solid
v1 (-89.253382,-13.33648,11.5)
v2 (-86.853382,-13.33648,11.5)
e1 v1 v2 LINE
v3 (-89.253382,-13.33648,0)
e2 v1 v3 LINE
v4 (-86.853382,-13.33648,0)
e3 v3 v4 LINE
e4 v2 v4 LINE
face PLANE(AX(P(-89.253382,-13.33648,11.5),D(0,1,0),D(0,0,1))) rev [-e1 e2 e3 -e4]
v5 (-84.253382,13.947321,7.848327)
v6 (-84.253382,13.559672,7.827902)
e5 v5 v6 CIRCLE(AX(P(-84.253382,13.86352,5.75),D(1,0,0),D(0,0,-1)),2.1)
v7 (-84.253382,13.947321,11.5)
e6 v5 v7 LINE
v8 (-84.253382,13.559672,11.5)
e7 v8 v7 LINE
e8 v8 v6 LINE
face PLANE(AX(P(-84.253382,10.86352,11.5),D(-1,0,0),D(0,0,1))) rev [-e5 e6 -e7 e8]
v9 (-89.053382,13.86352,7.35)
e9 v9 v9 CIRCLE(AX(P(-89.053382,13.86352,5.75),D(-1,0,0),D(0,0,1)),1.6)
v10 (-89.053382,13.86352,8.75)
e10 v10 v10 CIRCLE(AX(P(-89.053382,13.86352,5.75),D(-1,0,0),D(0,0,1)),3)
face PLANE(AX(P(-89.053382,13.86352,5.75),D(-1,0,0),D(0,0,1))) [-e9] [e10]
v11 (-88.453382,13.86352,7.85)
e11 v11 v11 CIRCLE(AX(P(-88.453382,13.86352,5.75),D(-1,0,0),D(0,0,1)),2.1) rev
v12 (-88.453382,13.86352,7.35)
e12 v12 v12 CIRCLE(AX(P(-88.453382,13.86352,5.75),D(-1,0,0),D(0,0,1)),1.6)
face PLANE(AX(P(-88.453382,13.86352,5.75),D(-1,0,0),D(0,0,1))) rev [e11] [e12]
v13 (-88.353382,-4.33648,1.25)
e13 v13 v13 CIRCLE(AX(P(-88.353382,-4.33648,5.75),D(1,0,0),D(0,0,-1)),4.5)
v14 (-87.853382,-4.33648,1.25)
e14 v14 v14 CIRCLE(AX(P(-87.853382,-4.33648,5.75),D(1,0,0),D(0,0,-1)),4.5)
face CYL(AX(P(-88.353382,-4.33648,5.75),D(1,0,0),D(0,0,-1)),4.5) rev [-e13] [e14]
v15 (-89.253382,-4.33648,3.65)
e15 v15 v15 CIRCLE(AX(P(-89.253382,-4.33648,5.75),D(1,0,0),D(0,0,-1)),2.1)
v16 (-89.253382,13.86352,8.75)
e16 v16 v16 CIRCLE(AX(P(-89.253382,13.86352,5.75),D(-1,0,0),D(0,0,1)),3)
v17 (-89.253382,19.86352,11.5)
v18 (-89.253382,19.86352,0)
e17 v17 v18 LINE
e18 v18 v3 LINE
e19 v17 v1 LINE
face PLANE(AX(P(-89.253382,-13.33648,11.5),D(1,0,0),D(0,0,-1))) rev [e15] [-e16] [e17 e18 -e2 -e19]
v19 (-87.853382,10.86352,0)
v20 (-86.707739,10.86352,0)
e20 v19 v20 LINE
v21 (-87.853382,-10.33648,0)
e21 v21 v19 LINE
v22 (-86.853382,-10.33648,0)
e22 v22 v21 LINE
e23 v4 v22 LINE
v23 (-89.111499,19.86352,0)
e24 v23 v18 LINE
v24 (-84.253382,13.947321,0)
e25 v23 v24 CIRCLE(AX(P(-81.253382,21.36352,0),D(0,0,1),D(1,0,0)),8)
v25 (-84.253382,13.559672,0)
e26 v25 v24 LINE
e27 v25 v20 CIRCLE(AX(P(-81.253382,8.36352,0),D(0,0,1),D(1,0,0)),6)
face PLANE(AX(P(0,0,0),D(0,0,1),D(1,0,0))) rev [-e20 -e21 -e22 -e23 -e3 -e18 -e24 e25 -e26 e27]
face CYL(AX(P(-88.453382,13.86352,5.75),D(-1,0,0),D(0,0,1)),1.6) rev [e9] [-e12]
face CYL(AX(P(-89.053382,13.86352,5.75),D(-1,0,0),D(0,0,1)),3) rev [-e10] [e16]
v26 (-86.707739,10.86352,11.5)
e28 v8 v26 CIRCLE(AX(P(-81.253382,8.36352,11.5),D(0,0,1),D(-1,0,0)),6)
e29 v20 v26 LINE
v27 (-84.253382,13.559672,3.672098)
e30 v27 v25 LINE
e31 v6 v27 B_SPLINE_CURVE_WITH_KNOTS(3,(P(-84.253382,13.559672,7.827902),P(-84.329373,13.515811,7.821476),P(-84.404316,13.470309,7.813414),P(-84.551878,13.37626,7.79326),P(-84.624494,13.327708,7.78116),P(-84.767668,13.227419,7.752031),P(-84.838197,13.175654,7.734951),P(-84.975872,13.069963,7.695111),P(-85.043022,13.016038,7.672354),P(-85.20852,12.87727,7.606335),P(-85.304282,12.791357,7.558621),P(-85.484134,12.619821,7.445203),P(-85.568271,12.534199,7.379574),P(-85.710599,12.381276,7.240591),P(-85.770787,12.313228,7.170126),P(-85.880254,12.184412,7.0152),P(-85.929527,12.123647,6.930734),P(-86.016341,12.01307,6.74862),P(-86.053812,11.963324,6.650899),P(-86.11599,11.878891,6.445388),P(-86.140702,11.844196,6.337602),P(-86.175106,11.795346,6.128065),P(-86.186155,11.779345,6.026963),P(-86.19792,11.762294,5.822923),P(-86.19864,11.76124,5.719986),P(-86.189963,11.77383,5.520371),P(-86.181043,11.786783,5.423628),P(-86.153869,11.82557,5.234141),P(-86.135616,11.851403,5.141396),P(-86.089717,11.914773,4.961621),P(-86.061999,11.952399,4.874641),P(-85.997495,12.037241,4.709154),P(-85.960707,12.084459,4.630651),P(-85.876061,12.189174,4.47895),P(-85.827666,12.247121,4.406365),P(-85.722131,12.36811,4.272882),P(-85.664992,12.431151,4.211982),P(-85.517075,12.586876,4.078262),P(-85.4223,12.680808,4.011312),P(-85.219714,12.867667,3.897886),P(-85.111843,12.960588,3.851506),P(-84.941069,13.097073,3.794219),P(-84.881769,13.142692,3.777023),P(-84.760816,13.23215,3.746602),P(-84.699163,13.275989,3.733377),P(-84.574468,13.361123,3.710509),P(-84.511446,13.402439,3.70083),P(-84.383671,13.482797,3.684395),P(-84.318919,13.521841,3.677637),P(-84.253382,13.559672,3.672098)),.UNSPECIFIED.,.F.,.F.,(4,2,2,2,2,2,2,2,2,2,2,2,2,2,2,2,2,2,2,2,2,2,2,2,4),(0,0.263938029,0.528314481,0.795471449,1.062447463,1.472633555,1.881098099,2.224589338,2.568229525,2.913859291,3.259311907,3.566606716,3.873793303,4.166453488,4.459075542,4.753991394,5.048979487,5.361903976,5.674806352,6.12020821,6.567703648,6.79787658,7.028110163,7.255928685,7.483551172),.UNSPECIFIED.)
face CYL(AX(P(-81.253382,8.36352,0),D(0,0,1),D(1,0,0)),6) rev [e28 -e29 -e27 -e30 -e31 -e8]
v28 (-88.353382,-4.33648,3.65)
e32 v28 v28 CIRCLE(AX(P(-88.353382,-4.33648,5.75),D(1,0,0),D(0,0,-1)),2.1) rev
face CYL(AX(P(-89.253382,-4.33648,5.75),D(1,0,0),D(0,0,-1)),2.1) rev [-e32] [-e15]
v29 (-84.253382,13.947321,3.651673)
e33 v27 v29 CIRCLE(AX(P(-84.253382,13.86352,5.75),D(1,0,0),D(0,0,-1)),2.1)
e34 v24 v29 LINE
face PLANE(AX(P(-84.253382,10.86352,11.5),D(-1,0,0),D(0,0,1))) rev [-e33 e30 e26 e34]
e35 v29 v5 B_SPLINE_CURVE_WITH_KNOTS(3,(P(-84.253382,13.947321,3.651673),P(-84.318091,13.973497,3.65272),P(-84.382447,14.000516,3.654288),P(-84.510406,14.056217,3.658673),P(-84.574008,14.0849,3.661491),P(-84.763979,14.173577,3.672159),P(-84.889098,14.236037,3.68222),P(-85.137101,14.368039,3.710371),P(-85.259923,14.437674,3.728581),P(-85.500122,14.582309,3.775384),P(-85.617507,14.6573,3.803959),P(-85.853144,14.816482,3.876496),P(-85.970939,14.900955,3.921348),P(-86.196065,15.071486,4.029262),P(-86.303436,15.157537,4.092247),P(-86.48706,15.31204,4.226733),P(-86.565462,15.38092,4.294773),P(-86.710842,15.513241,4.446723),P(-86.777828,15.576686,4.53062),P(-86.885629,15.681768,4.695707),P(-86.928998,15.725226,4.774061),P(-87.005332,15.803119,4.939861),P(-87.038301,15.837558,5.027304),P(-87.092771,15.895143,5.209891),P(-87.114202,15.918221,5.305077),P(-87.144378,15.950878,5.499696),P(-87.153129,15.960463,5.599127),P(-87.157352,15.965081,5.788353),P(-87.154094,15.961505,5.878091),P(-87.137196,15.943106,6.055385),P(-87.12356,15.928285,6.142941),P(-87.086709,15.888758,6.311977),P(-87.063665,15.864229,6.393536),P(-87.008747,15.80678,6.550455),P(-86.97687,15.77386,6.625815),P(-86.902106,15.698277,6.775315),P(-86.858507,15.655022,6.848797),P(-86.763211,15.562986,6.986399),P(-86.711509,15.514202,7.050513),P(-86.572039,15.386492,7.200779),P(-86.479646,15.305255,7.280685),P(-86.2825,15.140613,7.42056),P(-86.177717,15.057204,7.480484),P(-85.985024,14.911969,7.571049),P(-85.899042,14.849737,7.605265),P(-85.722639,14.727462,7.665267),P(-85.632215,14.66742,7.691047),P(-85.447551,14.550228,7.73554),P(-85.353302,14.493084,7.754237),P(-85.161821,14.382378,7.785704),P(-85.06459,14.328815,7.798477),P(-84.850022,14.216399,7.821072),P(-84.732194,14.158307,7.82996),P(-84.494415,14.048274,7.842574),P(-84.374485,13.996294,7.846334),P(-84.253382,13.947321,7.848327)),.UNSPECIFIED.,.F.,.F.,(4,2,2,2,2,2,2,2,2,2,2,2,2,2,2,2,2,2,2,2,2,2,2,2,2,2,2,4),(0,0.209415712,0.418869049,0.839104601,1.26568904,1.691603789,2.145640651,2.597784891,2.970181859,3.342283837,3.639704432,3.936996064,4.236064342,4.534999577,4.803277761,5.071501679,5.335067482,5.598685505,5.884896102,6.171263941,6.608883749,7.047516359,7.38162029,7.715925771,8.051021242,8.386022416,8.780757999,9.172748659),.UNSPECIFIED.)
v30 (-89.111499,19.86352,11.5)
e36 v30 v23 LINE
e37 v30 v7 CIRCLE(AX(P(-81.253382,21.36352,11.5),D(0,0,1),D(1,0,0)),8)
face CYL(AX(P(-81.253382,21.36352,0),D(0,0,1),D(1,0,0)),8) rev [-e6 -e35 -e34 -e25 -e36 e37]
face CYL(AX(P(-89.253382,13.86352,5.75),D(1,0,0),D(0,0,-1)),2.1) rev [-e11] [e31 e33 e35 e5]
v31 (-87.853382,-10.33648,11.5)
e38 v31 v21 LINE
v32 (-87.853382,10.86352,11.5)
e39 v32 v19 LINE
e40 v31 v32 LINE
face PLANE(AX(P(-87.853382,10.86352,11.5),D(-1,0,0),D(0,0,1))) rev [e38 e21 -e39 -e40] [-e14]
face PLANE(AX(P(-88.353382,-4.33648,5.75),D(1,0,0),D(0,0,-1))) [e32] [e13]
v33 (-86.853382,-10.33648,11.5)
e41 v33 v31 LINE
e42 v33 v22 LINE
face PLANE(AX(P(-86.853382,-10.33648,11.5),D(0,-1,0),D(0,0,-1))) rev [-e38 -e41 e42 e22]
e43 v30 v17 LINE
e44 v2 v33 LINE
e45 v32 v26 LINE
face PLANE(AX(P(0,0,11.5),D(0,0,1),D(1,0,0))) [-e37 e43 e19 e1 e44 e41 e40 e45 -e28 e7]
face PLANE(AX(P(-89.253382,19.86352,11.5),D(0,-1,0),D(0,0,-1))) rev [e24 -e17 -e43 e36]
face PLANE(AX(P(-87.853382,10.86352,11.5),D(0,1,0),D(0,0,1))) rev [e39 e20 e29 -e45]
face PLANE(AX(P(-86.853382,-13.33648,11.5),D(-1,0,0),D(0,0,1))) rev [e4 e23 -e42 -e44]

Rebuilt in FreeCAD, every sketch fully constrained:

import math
import FreeCAD as App
import Part
import Sketcher
from FreeCAD import Vector
Q = App.Units.Quantity

doc = App.newDocument("Part")
params = doc.addObject("Spreadsheet::Sheet", "Params")
for row, (alias, value) in enumerate([
    ("sketch1_width", "1 mm"),
    ("sketch1_height", "3 mm"),
    ("sketch1_height2", "6 mm"),
    ("sketch1_width2", "2.4 mm"),
    ("sketch1_width3", "3.6 mm"),
    ("pad1_length", "11.5 mm"),
    ("sketch2_diameter", "4.2 mm"),
    ("pocket1_length", "5 mm"),
    ("sketch3_diameter", "9 mm"),
    ("pocket2_length", "0.5 mm"),
    ("sketch4_diameter", "6 mm"),
    ("pocket3_length", "0.2 mm"),
    ("sketch5_diameter", "4.2 mm"),
    ("sketch5_diameter2", "3.2 mm"),
    ("pad2_length", "0.6 mm"),
    ("sketch6_radius", "8 mm"),
    ("sketch6_radius2", "6 mm"),
    ("pocket4_length", "11.5 mm"),
], start=1):
    params.set(f"A{row}", alias)
    params.set(f"B{row}", "=" + value)
    params.setAlias(f"B{row}", alias)

body = doc.addObject("PartDesign::Body", "Body")

# Sketch on XY plane
sketch1 = body.newObject("Sketcher::SketchObject", "Sketch")
sketch1.AttachmentSupport = (doc.getObject("XY_Plane"), [""])
sketch1.MapMode = "FlatFace"
sketch1.addGeometry([
    Part.LineSegment(Vector(-89.253382, 19.86352, 0), Vector(-89.253382, -13.33648, 0)),  # 0
    Part.LineSegment(Vector(-89.253382, -13.33648, 0), Vector(-86.853382, -13.33648, 0)),  # 1
    Part.LineSegment(Vector(-86.853382, -13.33648, 0), Vector(-86.853382, -10.33648, 0)),  # 2
    Part.LineSegment(Vector(-86.853382, -10.33648, 0), Vector(-87.853382, -10.33648, 0)),  # 3
    Part.LineSegment(Vector(-87.853382, -10.33648, 0), Vector(-87.853382, 10.86352, 0)),  # 4
    Part.LineSegment(Vector(-87.853382, 10.86352, 0), Vector(-84.253382, 10.86352, 0)),  # 5
    Part.LineSegment(Vector(-84.253382, 10.86352, 0), Vector(-84.253382, 16.86352, 0)),  # 6
    Part.LineSegment(Vector(-84.253382, 16.86352, 0), Vector(-87.853382, 16.86352, 0)),  # 7
    Part.LineSegment(Vector(-87.853382, 16.86352, 0), Vector(-87.853382, 19.86352, 0)),  # 8
    Part.LineSegment(Vector(-87.853382, 19.86352, 0), Vector(-89.253382, 19.86352, 0)),  # 9
], False)
sketch1.addConstraint([
    Sketcher.Constraint("Coincident", 0, 2, 1, 1),
    Sketcher.Constraint("Coincident", 1, 2, 2, 1),
    Sketcher.Constraint("Coincident", 2, 2, 3, 1),
    Sketcher.Constraint("Coincident", 3, 2, 4, 1),
    Sketcher.Constraint("Coincident", 4, 2, 5, 1),
    Sketcher.Constraint("Coincident", 5, 2, 6, 1),
    Sketcher.Constraint("Coincident", 6, 2, 7, 1),
    Sketcher.Constraint("Coincident", 7, 2, 8, 1),
    Sketcher.Constraint("Coincident", 8, 2, 9, 1),
    Sketcher.Constraint("Coincident", 9, 2, 0, 1),
    Sketcher.Constraint("Vertical", 0),
    Sketcher.Constraint("Horizontal", 1),
    Sketcher.Constraint("Vertical", 2),
    Sketcher.Constraint("Horizontal", 3),
    Sketcher.Constraint("Vertical", 4),
    Sketcher.Constraint("Horizontal", 5),
    Sketcher.Constraint("Vertical", 6),
    Sketcher.Constraint("Horizontal", 7),
    Sketcher.Constraint("Vertical", 8),
    Sketcher.Constraint("Horizontal", 9),
    Sketcher.Constraint("Vertical", 4, 2, 7, 2),
    Sketcher.Constraint("Equal", 2, 8),
    Sketcher.Constraint("DistanceX", 3, 2, 3, 1, Q("1 mm")),
    Sketcher.Constraint("DistanceY", 2, 1, 2, 2, Q("3 mm")),
    Sketcher.Constraint("DistanceY", 6, 1, 6, 2, Q("6 mm")),
    Sketcher.Constraint("DistanceX", 1, 1, 1, 2, Q("2.4 mm")),
    Sketcher.Constraint("DistanceX", 5, 1, 5, 2, Q("3.6 mm")),
    Sketcher.Constraint("DistanceY", 0, 2, 0, 1, Q("33.2 mm")),
    Sketcher.Constraint("DistanceY", 0, 2, -1, 1, Q("13.33648 mm")),
    Sketcher.Constraint("DistanceX", 0, 2, -1, 1, Q("89.253382 mm")),
])
sketch1.setExpression("Constraints[22]", "Params.sketch1_width")
sketch1.setExpression("Constraints[23]", "Params.sketch1_height")
sketch1.setExpression("Constraints[24]", "Params.sketch1_height2")
sketch1.setExpression("Constraints[25]", "Params.sketch1_width2")
sketch1.setExpression("Constraints[26]", "Params.sketch1_width3")
pad1 = body.newObject("PartDesign::Pad", "Pad")
pad1.Profile = sketch1
pad1.setExpression("Length", "Params.pad1_length")

# Sketch on YZ plane
sketch2 = body.newObject("Sketcher::SketchObject", "Sketch001")
sketch2.AttachmentSupport = (doc.getObject("YZ_Plane"), [""])
sketch2.MapMode = "FlatFace"
sketch2.AttachmentOffset = App.Placement(Vector(0, 0, -89.253382), App.Rotation())
sketch2.addGeometry([
    Part.Circle(Vector(13.86352, 5.75, 0), Vector(0, 0, 1), 2.1),
    Part.Circle(Vector(-4.33648, 5.75, 0), Vector(0, 0, 1), 2.1),
], False)
sketch2.addConstraint([
    Sketcher.Constraint("Equal", 0, 1),
    Sketcher.Constraint("Horizontal", 0, 3, 1, 3),
    Sketcher.Constraint("Diameter", 0, Q("4.2 mm")),
    Sketcher.Constraint("DistanceX", 1, 3, 0, 3, Q("18.2 mm")),
    Sketcher.Constraint("DistanceY", -1, 1, 0, 3, Q("5.75 mm")),
    Sketcher.Constraint("DistanceX", -1, 1, 0, 3, Q("13.86352 mm")),
])
sketch2.setExpression("Constraints[2]", "Params.sketch2_diameter")
pocket1 = body.newObject("PartDesign::Pocket", "Pocket")
pocket1.Profile = sketch2
pocket1.setExpression("Length", "Params.pocket1_length")
pocket1.Reversed = True

# Sketch on YZ plane
sketch3 = body.newObject("Sketcher::SketchObject", "Sketch002")
sketch3.AttachmentSupport = (doc.getObject("YZ_Plane"), [""])
sketch3.MapMode = "FlatFace"
sketch3.AttachmentOffset = App.Placement(Vector(0, 0, -87.853382), App.Rotation())
sketch3.addGeometry(Part.Circle(Vector(-4.33648, 5.75, 0), Vector(0, 0, 1), 4.5), False)
sketch3.addConstraint([
    Sketcher.Constraint("Diameter", 0, Q("9 mm")),
    Sketcher.Constraint("DistanceY", -1, 1, 0, 3, Q("5.75 mm")),
    Sketcher.Constraint("DistanceX", 0, 3, -1, 1, Q("4.33648 mm")),
])
sketch3.setExpression("Constraints[0]", "Params.sketch3_diameter")
pocket2 = body.newObject("PartDesign::Pocket", "Pocket001")
pocket2.Profile = sketch3
pocket2.setExpression("Length", "Params.pocket2_length")

# Sketch on YZ plane
sketch4 = body.newObject("Sketcher::SketchObject", "Sketch003")
sketch4.AttachmentSupport = (doc.getObject("YZ_Plane"), [""])
sketch4.MapMode = "FlatFace"
sketch4.AttachmentOffset = App.Placement(Vector(0, 0, -89.253382), App.Rotation())
sketch4.addGeometry(Part.Circle(Vector(13.86352, 5.75, 0), Vector(0, 0, 1), 3), False)
sketch4.addConstraint([
    Sketcher.Constraint("Diameter", 0, Q("6 mm")),
    Sketcher.Constraint("DistanceY", -1, 1, 0, 3, Q("5.75 mm")),
    Sketcher.Constraint("DistanceX", -1, 1, 0, 3, Q("13.86352 mm")),
])
sketch4.setExpression("Constraints[0]", "Params.sketch4_diameter")
pocket3 = body.newObject("PartDesign::Pocket", "Pocket002")
pocket3.Profile = sketch4
pocket3.setExpression("Length", "Params.pocket3_length")
pocket3.Reversed = True

# Sketch on YZ plane
sketch5 = body.newObject("Sketcher::SketchObject", "Sketch004")
sketch5.AttachmentSupport = (doc.getObject("YZ_Plane"), [""])
sketch5.MapMode = "FlatFace"
sketch5.AttachmentOffset = App.Placement(Vector(0, 0, -89.053382), App.Rotation())
sketch5.addGeometry([
    Part.Circle(Vector(13.86352, 5.75, 0), Vector(0, 0, 1), 2.1),
    Part.Circle(Vector(13.86352, 5.75, 0), Vector(0, 0, 1), 1.6),
], False)
sketch5.addConstraint([
    Sketcher.Constraint("Coincident", 1, 3, 0, 3),
    Sketcher.Constraint("Diameter", 0, Q("4.2 mm")),
    Sketcher.Constraint("Diameter", 1, Q("3.2 mm")),
    Sketcher.Constraint("DistanceY", -1, 1, 0, 3, Q("5.75 mm")),
    Sketcher.Constraint("DistanceX", -1, 1, 0, 3, Q("13.86352 mm")),
])
sketch5.setExpression("Constraints[1]", "Params.sketch5_diameter")
sketch5.setExpression("Constraints[2]", "Params.sketch5_diameter2")
pad2 = body.newObject("PartDesign::Pad", "Pad001")
pad2.Profile = sketch5
pad2.setExpression("Length", "Params.pad2_length")

# Sketch on XY plane
sketch6 = body.newObject("Sketcher::SketchObject", "Sketch005")
sketch6.AttachmentSupport = (doc.getObject("XY_Plane"), [""])
sketch6.MapMode = "FlatFace"
sketch6.AttachmentOffset = App.Placement(Vector(0, 0, 11.5), App.Rotation())
sketch6.addGeometry([
    Part.ArcOfCircle(Part.Circle(Vector(-81.253382, 21.36352, 0), Vector(0, 0, 1), 8), math.radians(-71.283049), math.radians(251.283049)),
    Part.ArcOfCircle(Part.Circle(Vector(-81.253382, 8.36352, 0), Vector(0, 0, 1), 6), math.radians(115.331675), math.radians(424.668325)),
], False)
sketch6.addConstraint([
    Sketcher.Constraint("Coincident", 0, 1, 1, 2),
    Sketcher.Constraint("Coincident", 1, 1, 0, 2),
    Sketcher.Constraint("Horizontal", 0, 1, 1, 1),
    Sketcher.Constraint("Radius", 0, Q("8 mm")),
    Sketcher.Constraint("Radius", 1, Q("6 mm")),
    Sketcher.Constraint("DistanceY", 1, 3, 0, 3, Q("13 mm")),
    Sketcher.Constraint("DistanceY", -1, 1, 0, 3, Q("21.36352 mm")),
    Sketcher.Constraint("DistanceX", 1, 1, -1, 1, Q("83.820528 mm")),
])
sketch6.setExpression("Constraints[3]", "Params.sketch6_radius")
sketch6.setExpression("Constraints[4]", "Params.sketch6_radius2")
pocket4 = body.newObject("PartDesign::Pocket", "Pocket003")
pocket4.Profile = sketch6
pocket4.setExpression("Length", "Params.pocket4_length")

doc.recompute()
